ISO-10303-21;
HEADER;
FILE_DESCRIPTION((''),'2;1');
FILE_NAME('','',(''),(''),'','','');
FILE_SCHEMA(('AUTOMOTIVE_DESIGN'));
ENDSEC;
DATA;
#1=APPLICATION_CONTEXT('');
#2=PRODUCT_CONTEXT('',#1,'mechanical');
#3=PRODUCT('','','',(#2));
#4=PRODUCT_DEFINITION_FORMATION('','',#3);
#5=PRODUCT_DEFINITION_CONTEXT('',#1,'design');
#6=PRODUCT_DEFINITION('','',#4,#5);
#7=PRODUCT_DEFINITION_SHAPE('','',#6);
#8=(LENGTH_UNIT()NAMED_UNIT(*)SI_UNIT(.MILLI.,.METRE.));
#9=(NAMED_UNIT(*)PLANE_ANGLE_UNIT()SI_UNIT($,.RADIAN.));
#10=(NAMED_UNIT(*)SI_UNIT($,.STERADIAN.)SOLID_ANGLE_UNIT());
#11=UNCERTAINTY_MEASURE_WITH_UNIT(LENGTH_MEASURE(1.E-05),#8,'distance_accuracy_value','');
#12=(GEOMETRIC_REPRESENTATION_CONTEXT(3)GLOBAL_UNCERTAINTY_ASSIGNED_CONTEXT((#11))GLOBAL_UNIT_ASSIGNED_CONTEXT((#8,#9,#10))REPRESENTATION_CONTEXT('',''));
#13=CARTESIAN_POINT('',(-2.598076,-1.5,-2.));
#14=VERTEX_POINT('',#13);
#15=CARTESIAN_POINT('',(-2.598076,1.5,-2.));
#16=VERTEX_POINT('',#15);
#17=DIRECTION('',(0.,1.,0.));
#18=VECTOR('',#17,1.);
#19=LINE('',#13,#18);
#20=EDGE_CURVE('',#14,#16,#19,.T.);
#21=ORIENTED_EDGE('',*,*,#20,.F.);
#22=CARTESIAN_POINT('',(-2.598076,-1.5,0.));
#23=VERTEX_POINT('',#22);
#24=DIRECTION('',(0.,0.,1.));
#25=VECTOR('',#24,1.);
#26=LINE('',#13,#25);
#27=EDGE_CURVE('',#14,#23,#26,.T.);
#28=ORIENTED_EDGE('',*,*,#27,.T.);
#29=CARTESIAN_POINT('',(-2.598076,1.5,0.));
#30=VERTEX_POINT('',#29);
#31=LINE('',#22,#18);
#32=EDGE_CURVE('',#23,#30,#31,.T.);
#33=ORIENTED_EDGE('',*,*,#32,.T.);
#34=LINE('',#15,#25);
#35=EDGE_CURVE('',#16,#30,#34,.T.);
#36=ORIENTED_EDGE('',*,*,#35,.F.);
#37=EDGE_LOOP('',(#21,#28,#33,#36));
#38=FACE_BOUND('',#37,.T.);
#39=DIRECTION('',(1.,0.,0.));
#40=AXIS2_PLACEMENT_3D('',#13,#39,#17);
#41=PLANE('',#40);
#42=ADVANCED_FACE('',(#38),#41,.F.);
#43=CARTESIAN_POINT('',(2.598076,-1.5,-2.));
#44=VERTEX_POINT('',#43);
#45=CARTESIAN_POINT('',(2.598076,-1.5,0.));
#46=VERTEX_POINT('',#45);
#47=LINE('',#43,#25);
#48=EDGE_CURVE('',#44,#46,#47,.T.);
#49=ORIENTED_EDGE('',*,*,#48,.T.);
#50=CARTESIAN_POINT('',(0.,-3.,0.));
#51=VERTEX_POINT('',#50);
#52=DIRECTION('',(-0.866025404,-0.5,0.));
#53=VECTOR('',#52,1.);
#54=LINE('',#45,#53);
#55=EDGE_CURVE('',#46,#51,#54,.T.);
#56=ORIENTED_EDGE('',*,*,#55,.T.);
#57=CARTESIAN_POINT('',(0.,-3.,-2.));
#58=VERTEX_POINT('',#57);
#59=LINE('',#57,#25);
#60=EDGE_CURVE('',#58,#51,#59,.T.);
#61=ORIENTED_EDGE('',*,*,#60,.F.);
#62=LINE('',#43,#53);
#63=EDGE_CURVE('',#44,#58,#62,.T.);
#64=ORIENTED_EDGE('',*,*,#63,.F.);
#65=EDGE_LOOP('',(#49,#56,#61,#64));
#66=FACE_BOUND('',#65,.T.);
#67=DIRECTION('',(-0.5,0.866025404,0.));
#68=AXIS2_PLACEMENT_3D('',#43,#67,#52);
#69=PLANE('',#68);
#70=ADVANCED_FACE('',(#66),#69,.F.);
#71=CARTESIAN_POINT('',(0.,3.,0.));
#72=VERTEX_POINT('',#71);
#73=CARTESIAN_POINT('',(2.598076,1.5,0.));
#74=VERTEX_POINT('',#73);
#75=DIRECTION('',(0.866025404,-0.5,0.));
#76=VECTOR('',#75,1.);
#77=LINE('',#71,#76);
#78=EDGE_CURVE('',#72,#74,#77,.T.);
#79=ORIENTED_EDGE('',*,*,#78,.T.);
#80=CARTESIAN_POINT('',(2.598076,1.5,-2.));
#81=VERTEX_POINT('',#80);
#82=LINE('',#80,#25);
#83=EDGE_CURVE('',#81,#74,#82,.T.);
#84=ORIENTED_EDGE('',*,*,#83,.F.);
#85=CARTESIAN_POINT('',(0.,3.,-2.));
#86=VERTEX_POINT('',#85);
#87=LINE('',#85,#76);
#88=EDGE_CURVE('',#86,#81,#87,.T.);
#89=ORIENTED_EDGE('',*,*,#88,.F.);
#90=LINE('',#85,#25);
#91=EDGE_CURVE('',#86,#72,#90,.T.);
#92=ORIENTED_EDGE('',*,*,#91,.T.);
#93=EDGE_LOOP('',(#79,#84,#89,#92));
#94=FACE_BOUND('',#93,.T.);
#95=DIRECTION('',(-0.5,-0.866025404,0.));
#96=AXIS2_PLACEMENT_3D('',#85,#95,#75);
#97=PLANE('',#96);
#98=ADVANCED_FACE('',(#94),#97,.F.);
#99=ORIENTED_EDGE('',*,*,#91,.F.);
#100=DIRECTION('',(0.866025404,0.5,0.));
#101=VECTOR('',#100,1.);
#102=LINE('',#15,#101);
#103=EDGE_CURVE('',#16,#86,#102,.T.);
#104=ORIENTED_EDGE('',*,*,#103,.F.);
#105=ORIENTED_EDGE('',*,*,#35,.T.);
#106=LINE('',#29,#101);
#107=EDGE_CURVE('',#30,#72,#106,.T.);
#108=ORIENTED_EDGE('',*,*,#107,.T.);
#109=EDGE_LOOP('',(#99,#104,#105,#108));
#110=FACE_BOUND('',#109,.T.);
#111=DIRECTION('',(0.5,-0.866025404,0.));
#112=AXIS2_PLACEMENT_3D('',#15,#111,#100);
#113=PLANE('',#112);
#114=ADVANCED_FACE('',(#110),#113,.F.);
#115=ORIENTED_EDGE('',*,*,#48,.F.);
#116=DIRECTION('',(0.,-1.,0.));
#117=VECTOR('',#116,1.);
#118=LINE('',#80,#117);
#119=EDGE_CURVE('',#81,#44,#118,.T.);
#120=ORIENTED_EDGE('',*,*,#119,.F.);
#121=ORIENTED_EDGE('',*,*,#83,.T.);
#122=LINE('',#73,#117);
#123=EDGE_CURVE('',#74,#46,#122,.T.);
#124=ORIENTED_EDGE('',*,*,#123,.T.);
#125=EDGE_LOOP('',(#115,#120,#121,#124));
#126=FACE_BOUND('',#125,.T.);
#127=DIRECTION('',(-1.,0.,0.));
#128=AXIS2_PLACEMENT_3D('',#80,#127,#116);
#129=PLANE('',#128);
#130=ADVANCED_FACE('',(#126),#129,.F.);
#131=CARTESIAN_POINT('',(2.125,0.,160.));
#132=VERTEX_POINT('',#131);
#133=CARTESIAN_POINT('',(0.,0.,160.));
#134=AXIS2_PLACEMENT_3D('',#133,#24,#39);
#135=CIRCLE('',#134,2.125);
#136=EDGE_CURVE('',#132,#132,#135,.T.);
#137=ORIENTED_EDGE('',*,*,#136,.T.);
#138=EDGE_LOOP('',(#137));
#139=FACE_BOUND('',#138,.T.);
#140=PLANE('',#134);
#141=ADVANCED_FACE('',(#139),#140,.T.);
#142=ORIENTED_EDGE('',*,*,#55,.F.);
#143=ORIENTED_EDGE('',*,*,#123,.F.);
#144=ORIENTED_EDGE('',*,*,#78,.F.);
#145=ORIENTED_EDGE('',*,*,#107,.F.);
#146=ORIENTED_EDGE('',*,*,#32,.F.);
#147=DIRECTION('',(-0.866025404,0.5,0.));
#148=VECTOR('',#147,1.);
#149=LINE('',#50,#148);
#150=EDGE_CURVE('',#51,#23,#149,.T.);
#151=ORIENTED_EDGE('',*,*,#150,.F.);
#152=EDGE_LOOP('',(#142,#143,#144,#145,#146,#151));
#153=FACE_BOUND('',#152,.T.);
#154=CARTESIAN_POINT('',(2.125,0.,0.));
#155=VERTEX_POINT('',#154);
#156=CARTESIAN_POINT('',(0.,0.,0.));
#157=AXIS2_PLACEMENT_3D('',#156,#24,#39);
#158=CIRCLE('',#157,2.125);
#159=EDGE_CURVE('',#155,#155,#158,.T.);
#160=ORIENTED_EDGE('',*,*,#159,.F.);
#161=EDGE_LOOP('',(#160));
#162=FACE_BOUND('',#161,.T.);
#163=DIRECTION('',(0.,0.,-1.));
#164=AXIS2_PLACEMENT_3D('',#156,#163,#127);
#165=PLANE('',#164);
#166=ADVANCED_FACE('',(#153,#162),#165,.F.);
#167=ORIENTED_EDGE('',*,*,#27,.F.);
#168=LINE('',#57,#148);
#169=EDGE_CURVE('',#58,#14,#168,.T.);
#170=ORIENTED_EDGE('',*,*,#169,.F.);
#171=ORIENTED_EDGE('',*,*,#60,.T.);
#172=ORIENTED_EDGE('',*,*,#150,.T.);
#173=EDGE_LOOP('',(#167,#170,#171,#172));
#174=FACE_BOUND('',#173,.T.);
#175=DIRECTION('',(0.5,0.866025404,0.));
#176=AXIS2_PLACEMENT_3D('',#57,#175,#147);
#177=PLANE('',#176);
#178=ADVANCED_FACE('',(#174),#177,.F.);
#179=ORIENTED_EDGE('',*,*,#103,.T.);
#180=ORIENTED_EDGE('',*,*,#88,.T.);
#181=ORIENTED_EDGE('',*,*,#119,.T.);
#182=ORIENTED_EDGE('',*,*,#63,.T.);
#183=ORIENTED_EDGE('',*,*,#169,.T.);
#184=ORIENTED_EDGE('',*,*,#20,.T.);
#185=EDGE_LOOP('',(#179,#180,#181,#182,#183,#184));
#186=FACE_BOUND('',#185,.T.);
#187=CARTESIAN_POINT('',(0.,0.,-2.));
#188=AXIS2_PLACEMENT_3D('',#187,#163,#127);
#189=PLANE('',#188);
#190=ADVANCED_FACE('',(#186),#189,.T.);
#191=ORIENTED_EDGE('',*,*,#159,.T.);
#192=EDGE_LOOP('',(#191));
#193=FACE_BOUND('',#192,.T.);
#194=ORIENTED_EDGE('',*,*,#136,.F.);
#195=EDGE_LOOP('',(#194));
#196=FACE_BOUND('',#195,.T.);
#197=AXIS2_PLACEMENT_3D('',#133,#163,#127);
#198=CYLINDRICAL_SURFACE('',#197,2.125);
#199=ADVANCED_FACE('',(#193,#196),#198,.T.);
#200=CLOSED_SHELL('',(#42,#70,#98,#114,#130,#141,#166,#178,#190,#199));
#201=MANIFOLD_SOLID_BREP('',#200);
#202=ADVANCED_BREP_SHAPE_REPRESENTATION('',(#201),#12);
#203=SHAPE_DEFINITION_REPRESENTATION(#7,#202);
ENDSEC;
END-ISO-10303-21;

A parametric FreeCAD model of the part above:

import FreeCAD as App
import Part
import Sketcher

V = App.Vector
Q = App.Units.Quantity


def add_polygon(sketch, points):
    """Adds a closed chain of lines whose ends are joined by coincident constraints."""
    first, n = sketch.GeometryCount, len(points)
    for a, b in zip(points, points[1:] + points[:1]):
        sketch.addGeometry(Part.LineSegment(App.Vector(*a, 0), App.Vector(*b, 0)), False)
    for i in range(n):
        sketch.addConstraint(Sketcher.Constraint("Coincident", first + i, 2, first + (i + 1) % n, 1))

doc = App.newDocument("Part")
body = doc.addObject("PartDesign::Body", "Body")

# Sketch on XY plane
sketch1 = doc.addObject("Sketcher::SketchObject", "Sketch")
body.addObject(sketch1)
sketch1.AttachmentSupport = (doc.XY_Plane, [""])
sketch1.MapMode = "FlatFace"
sketch1.addGeometry(Part.Circle(V(0, 0, 0), V(0, 0, 1), 2.1), False)
sketch1.addConstraint(Sketcher.Constraint("Coincident", 0, 3, -1, 1))
sketch1.addConstraint(Sketcher.Constraint("Diameter", 0, Q("4.25 mm")))
pad1 = doc.addObject("PartDesign::Pad", "Pad")
body.addObject(pad1)
pad1.Profile = sketch1
pad1.Length = 160

# Sketch on XY plane
sketch2 = doc.addObject("Sketcher::SketchObject", "Sketch001")
body.addObject(sketch2)
sketch2.AttachmentSupport = (doc.XY_Plane, [""])
sketch2.MapMode = "FlatFace"
add_polygon(sketch2, [(0, 3), (2.6, 1.5), (2.6, -1.5), (0, -3), (-2.6, -1.5), (-2.6, 1.5)])  # lines 0-5
sketch2.addConstraint(Sketcher.Constraint("Vertical", 1))
sketch2.addConstraint(Sketcher.Constraint("Vertical", 4))
sketch2.addConstraint(Sketcher.Constraint("Symmetric", 0, 2, 3, 2, -1, 1))
sketch2.addConstraint(Sketcher.Constraint("Symmetric", 2, 2, 5, 2, -1, 1))
sketch2.addConstraint(Sketcher.Constraint("PointOnObject", 2, 2, -2))
sketch2.addConstraint(Sketcher.Constraint("Parallel", 2, 5))
sketch2.addConstraint(Sketcher.Constraint("Horizontal", 1, 2, 3, 2))
sketch2.addConstraint(Sketcher.Constraint("DistanceY", 1, 2, 1, 1, Q("3 mm")))
sketch2.addConstraint(Sketcher.Constraint("Angle", 0, Q("-30 deg")))
sketch2.addConstraint(Sketcher.Constraint("Distance", 0, Q("3 mm")))
pad2 = doc.addObject("PartDesign::Pad", "Pad001")
body.addObject(pad2)
pad2.Profile = sketch2
pad2.Length = 2
pad2.Reversed = True

doc.recompute()
